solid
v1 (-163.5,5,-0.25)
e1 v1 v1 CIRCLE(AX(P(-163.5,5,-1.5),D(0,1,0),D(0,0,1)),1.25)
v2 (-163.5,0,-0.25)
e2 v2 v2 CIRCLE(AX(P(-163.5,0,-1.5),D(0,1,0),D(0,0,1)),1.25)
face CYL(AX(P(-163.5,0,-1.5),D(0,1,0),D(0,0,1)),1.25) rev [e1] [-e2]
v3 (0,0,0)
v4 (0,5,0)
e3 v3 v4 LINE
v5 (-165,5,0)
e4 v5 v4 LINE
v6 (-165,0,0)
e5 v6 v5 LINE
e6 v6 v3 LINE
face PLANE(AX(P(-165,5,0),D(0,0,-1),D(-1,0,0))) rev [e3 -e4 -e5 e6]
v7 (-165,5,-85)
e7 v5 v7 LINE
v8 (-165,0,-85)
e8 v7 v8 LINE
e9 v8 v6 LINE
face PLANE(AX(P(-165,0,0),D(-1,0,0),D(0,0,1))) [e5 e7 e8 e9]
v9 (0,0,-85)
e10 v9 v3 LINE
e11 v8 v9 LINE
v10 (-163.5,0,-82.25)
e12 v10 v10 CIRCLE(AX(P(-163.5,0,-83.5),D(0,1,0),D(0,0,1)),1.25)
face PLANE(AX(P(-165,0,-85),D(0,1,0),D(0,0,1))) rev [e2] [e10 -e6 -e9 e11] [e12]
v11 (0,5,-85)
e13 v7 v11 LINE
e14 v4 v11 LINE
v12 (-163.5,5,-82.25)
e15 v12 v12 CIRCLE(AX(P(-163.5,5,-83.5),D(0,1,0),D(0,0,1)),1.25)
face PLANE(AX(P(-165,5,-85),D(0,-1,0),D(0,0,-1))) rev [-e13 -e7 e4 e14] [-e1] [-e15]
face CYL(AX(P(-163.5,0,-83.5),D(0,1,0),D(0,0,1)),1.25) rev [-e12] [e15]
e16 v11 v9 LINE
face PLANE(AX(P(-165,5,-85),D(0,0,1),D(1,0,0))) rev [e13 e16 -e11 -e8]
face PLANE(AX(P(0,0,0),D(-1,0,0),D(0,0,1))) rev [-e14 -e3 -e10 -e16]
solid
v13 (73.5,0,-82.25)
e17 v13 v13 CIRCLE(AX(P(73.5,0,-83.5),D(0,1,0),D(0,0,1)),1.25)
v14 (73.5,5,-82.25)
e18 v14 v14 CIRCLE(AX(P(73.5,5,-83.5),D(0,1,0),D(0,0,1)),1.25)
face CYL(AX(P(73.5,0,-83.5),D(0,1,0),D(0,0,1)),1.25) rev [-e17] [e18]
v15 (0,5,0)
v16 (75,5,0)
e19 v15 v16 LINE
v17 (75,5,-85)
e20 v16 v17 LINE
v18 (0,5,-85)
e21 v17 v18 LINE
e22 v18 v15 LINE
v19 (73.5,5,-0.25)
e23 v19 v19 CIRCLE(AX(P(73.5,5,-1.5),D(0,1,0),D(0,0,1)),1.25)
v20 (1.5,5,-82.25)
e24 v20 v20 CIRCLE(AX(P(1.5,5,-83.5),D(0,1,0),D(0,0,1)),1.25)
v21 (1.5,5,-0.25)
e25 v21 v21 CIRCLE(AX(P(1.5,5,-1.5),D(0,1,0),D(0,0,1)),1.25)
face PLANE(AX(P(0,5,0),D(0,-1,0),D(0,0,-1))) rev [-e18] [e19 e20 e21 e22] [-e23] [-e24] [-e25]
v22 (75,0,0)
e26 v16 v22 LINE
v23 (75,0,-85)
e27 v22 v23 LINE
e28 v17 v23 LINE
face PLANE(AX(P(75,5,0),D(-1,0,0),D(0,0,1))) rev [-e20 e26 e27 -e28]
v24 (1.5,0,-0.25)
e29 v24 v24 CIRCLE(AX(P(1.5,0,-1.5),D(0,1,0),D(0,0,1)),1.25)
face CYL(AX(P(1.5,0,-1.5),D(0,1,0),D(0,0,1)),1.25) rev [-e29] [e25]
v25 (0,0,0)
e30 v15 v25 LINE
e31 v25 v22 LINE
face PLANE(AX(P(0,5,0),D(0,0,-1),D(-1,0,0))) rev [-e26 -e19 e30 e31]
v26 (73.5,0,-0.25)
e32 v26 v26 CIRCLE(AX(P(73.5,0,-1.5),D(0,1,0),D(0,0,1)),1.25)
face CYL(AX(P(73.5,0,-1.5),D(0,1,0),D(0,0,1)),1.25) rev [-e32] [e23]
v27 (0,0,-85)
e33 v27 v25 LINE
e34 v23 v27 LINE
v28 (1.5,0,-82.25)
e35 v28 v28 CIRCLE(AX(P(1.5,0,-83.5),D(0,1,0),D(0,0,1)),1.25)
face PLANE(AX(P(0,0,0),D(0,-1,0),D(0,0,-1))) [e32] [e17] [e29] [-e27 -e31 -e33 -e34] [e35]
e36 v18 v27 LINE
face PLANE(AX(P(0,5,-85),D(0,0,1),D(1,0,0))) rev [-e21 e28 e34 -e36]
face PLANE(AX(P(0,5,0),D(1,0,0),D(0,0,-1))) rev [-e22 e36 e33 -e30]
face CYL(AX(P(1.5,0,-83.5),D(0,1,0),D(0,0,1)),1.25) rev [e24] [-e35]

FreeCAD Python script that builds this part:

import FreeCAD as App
import Part
import Sketcher
from FreeCAD import Vector


def add_polygon(sketch, points):
    """Adds a closed chain of lines whose ends are joined by coincident constraints."""
    first, n = sketch.GeometryCount, len(points)
    for a, b in zip(points, points[1:] + points[:1]):
        sketch.addGeometry(Part.LineSegment(App.Vector(*a, 0), App.Vector(*b, 0)), False)
    for i in range(n):
        sketch.addConstraint(Sketcher.Constraint("Coincident", first + i, 2, first + (i + 1) % n, 1))

doc = App.newDocument("Part")
body = doc.addObject("PartDesign::Body", "Body")

# Sketch on XZ plane
sketch1 = doc.addObject("Sketcher::SketchObject", "Sketch")
body.addObject(sketch1)
sketch1.AttachmentSupport = (doc.XZ_Plane, [""])
sketch1.MapMode = "FlatFace"
add_polygon(sketch1, [(0, -85), (0, 0), (75, 0), (75, -85)])  # lines 0-3
sketch1.addConstraint([
    Sketcher.Constraint("Vertical", 0),
    Sketcher.Constraint("Horizontal", 1),
    Sketcher.Constraint("Vertical", 2),
    Sketcher.Constraint("Horizontal", 3),
    Sketcher.Constraint("Coincident", 0, 2, -1, 1),
    Sketcher.Constraint("DistanceX", 1, 1, 1, 2, 75.0),
    Sketcher.Constraint("DistanceY", 0, 1, 0, 2, 85.0),
])
pad1 = doc.addObject("PartDesign::Pad", "Pad")
body.addObject(pad1)
pad1.Profile = sketch1
pad1.Length = 5
pad1.Reversed = True

# Sketch on XZ plane
sketch2 = doc.addObject("Sketcher::SketchObject", "Sketch001")
body.addObject(sketch2)
sketch2.AttachmentSupport = (doc.XZ_Plane, [""])
sketch2.MapMode = "FlatFace"
sketch2.AttachmentOffset = App.Placement(Vector(0, 0, -5), App.Rotation())
sketch2.addGeometry([
    Part.Circle(Vector(1.5, -1.5, 0), Vector(0, 0, 1), 1.25),
    Part.Circle(Vector(73.5, -1.5, 0), Vector(0, 0, 1), 1.25),
    Part.Circle(Vector(73.5, -83.5, 0), Vector(0, 0, 1), 1.25),
    Part.Circle(Vector(1.5, -83.5, 0), Vector(0, 0, 1), 1.25),
], False)
sketch2.addConstraint([
    Sketcher.Constraint("Equal", 0, 1),
    Sketcher.Constraint("Equal", 1, 2),
    Sketcher.Constraint("Equal", 2, 3),
    Sketcher.Constraint("Horizontal", 0, 3, 1, 3),
    Sketcher.Constraint("Horizontal", 2, 3, 3, 3),
    Sketcher.Constraint("Vertical", 1, 3, 2, 3),
    Sketcher.Constraint("Vertical", 0, 3, 3, 3),
    Sketcher.Constraint("Diameter", 0, 2.5),
    Sketcher.Constraint("DistanceX", 0, 3, 1, 3, 72.0),
    Sketcher.Constraint("DistanceY", 2, 3, 1, 3, 82.0),
    Sketcher.Constraint("DistanceX", -1, 1, 0, 3, 1.5),
    Sketcher.Constraint("DistanceY", 0, 3, -1, 1, 1.5),
])
pocket1 = doc.addObject("PartDesign::Pocket", "Pocket")
body.addObject(pocket1)
pocket1.Profile = sketch2
pocket1.Type = "ThroughAll"
pocket1.Reversed = True
body2 = doc.addObject("PartDesign::Body", "Body001")

# Sketch on YZ plane
sketch3 = doc.addObject("Sketcher::SketchObject", "Sketch002")
body2.addObject(sketch3)
sketch3.AttachmentSupport = (doc.getObject("YZ_Plane001"), [""])
sketch3.MapMode = "FlatFace"
add_polygon(sketch3, [(5, -85), (0, -85), (0, 0), (5, 0)])  # lines 0-3
sketch3.addConstraint([
    Sketcher.Constraint("Horizontal", 0),
    Sketcher.Constraint("Vertical", 1),
    Sketcher.Constraint("Horizontal", 2),
    Sketcher.Constraint("Vertical", 3),
    Sketcher.Constraint("Coincident", 1, 2, -1, 1),
    Sketcher.Constraint("DistanceX", 0, 2, 0, 1, 5.0),
    Sketcher.Constraint("DistanceY", 1, 1, 1, 2, 85.0),
])
pad2 = doc.addObject("PartDesign::Pad", "Pad001")
body2.addObject(pad2)
pad2.Profile = sketch3
pad2.Length = 165
pad2.Reversed = True

# Sketch on XZ plane
sketch4 = doc.addObject("Sketcher::SketchObject", "Sketch003")
body2.addObject(sketch4)
sketch4.AttachmentSupport = (doc.getObject("XZ_Plane001"), [""])
sketch4.MapMode = "FlatFace"
sketch4.AttachmentOffset = App.Placement(Vector(0, 0, -5), App.Rotation())
sketch4.addGeometry([
    Part.Circle(Vector(-163.5, -1.5, 0), Vector(0, 0, 1), 1.25),
    Part.Circle(Vector(-163.5, -83.5, 0), Vector(0, 0, 1), 1.25),
], False)
sketch4.addConstraint([
    Sketcher.Constraint("Equal", 0, 1),
    Sketcher.Constraint("Vertical", 0, 3, 1, 3),
    Sketcher.Constraint("Diameter", 0, 2.5),
    Sketcher.Constraint("DistanceY", 1, 3, 0, 3, 82.0),
    Sketcher.Constraint("DistanceX", 0, 3, -1, 1, 163.5),
    Sketcher.Constraint("DistanceY", 0, 3, -1, 1, 1.5),
])
pocket2 = doc.addObject("PartDesign::Pocket", "Pocket001")
body2.addObject(pocket2)
pocket2.Profile = sketch4
pocket2.Type = "ThroughAll"
pocket2.Reversed = True

doc.recompute()
